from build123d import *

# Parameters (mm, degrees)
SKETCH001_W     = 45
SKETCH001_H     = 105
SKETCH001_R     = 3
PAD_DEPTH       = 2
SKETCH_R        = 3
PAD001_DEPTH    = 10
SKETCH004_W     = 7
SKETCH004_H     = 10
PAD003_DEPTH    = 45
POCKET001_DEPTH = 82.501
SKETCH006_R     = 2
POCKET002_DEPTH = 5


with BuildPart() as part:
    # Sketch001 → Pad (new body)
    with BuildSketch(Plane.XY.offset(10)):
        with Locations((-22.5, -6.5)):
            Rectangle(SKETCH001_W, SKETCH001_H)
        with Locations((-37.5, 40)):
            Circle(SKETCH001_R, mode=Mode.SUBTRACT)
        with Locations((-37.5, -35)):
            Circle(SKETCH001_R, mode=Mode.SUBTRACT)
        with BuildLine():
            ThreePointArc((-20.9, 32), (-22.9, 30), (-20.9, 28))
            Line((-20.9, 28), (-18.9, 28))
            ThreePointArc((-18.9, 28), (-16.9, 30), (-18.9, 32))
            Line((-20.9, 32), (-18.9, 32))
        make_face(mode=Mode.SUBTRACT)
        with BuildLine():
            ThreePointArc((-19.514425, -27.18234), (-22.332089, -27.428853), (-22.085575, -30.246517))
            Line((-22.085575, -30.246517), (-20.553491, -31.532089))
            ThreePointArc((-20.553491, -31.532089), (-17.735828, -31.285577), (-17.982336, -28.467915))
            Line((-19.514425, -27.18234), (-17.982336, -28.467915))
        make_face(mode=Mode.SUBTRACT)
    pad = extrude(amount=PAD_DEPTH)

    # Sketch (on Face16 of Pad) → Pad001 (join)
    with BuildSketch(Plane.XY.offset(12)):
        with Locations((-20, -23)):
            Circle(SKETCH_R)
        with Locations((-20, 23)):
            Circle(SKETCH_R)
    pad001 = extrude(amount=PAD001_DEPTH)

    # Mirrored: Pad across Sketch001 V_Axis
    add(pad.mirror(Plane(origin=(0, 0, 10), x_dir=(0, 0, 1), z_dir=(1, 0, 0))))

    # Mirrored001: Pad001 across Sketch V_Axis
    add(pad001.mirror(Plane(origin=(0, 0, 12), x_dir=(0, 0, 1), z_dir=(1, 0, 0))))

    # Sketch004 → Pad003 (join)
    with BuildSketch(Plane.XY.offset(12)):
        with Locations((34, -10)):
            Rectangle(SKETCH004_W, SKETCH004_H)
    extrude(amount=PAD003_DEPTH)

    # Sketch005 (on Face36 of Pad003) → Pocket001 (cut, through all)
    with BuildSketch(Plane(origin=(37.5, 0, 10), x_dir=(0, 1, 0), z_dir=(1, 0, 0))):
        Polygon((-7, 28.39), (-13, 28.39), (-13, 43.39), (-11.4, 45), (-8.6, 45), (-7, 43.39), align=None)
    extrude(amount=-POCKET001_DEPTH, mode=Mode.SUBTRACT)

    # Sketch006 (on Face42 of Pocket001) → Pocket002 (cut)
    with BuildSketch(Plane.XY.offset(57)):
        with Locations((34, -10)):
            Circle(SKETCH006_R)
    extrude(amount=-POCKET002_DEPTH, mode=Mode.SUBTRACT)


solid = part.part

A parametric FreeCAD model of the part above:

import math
import FreeCAD as App
import Part
import Sketcher
from FreeCAD import Vector
Q = App.Units.Quantity

doc = App.newDocument("Part")
body = doc.addObject("PartDesign::Body", "Body")

# Sketch on XY plane
sketch1 = body.newObject("Sketcher::SketchObject", "Sketch")
sketch1.AttachmentSupport = (doc.getObject("XY_Plane"), [""])
sketch1.MapMode = "FlatFace"
sketch1.AttachmentOffset = App.Placement(Vector(0, 0, 10), App.Rotation())
sketch1.addGeometry([
    Part.LineSegment(Vector(-45, 46, 0), Vector(-45, -59, 0)),  # 0
    Part.LineSegment(Vector(-45, -59, 0), Vector(0, -59, 0)),  # 1
    Part.LineSegment(Vector(0, -59, 0), Vector(0, 46, 0)),  # 2
    Part.LineSegment(Vector(0, 46, 0), Vector(-45, 46, 0)),  # 3
    Part.Circle(Vector(-37.5, -35, 0), Vector(0, 0, 1), 3),  # 4
    Part.ArcOfCircle(Part.Circle(Vector(-20.800001, -28.714428, 0), Vector(0, 0, 1), 2), math.radians(49.999978), math.radians(230.000018)),  # 5
    Part.LineSegment(Vector(-19.514425, -27.18234, 0), Vector(-17.982336, -28.467915, 0)),  # 6
    Part.ArcOfCircle(Part.Circle(Vector(-19.267916, -30, 0), Vector(0, 0, 1), 2), math.radians(-130.000006), math.radians(49.999836)),  # 7
    Part.LineSegment(Vector(-20.553491, -31.532089, 0), Vector(-22.085575, -30.246517, 0)),  # 8
    Part.Circle(Vector(-37.5, 40, 0), Vector(0, 0, 1), 3),  # 9
    Part.ArcOfCircle(Part.Circle(Vector(-20.9, 30, 0), Vector(0, 0, 1), 2), math.radians(90), math.radians(270)),  # 10
    Part.LineSegment(Vector(-20.9, 32, 0), Vector(-18.9, 32, 0)),  # 11
    Part.ArcOfCircle(Part.Circle(Vector(-18.9, 30, 0), Vector(0, 0, 1), 2), math.radians(-90), math.radians(90)),  # 12
    Part.LineSegment(Vector(-18.9, 28, 0), Vector(-20.9, 28, 0)),  # 13
], False)
sketch1.addConstraint([
    Sketcher.Constraint("Coincident", 0, 2, 1, 1),
    Sketcher.Constraint("Coincident", 1, 2, 2, 1),
    Sketcher.Constraint("Coincident", 2, 2, 3, 1),
    Sketcher.Constraint("Coincident", 3, 2, 0, 1),
    Sketcher.Constraint("Tangent", 5, 1, 6, 1),
    Sketcher.Constraint("Coincident", 6, 2, 7, 2),
    Sketcher.Constraint("Tangent", 7, 1, 8, 1),
    Sketcher.Constraint("Tangent", 8, 2, 5, 2),
    Sketcher.Constraint("Tangent", 10, 1, 11, 1),
    Sketcher.Constraint("Tangent", 11, 2, 12, 2),
    Sketcher.Constraint("Tangent", 12, 1, 13, 1),
    Sketcher.Constraint("Tangent", 13, 2, 10, 2),
    Sketcher.Constraint("Vertical", 0),
    Sketcher.Constraint("Horizontal", 1),
    Sketcher.Constraint("Vertical", 2),
    Sketcher.Constraint("Horizontal", 3),
    Sketcher.Constraint("Horizontal", 11),
    Sketcher.Constraint("Horizontal", 13),
    Sketcher.Constraint("Equal", 5, 7),
    Sketcher.Constraint("Equal", 4, 9),
    Sketcher.Constraint("Equal", 7, 10),
    Sketcher.Constraint("PointOnObject", 1, 2, -2),
    Sketcher.Constraint("Vertical", 4, 3, 9, 3),
    Sketcher.Constraint("Diameter", 4, Q("6 mm")),
    Sketcher.Constraint("Radius", 5, Q("2 mm")),
    Sketcher.Constraint("DistanceX", 1, 1, 1, 2, Q("45 mm")),
    Sketcher.Constraint("DistanceX", 11, 1, 11, 2, Q("2 mm")),
    Sketcher.Constraint("DistanceY", 0, 2, 0, 1, Q("105 mm")),
    Sketcher.Constraint("Angle", 6, Q("-39.999993 deg")),
    Sketcher.Constraint("Distance", 6, Q("2 mm")),
    Sketcher.Constraint("DistanceY", 4, 3, -1, 1, Q("35 mm")),
    Sketcher.Constraint("DistanceY", 7, 3, -1, 1, Q("30 mm")),
    Sketcher.Constraint("DistanceY", -1, 1, 9, 3, Q("40 mm")),
    Sketcher.Constraint("DistanceY", -1, 1, 10, 3, Q("30 mm")),
    Sketcher.Constraint("DistanceY", 0, 2, -1, 1, Q("59 mm")),
    Sketcher.Constraint("DistanceX", 4, 3, -1, 1, Q("37.5 mm")),
    Sketcher.Constraint("DistanceX", 5, 3, -1, 1, Q("20.800001 mm")),
    Sketcher.Constraint("DistanceX", 10, 3, -1, 1, Q("20.9 mm")),
    Sketcher.Constraint("DistanceY", 5, 3, -1, 1, Q("28.714428 mm")),
])
pad1 = body.newObject("PartDesign::Pad", "Pad")
pad1.Profile = sketch1
pad1.Length = 2

# Sketch on XY plane
sketch2 = body.newObject("Sketcher::SketchObject", "Sketch001")
sketch2.AttachmentSupport = (doc.getObject("XY_Plane"), [""])
sketch2.MapMode = "FlatFace"
sketch2.AttachmentOffset = App.Placement(Vector(0, 0, 12), App.Rotation())
sketch2.addGeometry([
    Part.Circle(Vector(-20, -23, 0), Vector(0, 0, 1), 3),
    Part.Circle(Vector(-20, 23, 0), Vector(0, 0, 1), 3),
], False)
sketch2.addConstraint([
    Sketcher.Constraint("Equal", 0, 1),
    Sketcher.Constraint("Symmetric", 0, 3, 1, 3, -1),
    Sketcher.Constraint("Diameter", 0, Q("6 mm")),
    Sketcher.Constraint("DistanceX", 0, 3, -1, 1, Q("20 mm")),
    Sketcher.Constraint("DistanceY", 0, 3, -1, 1, Q("23 mm")),
])
pad2 = body.newObject("PartDesign::Pad", "Pad001")
pad2.Profile = sketch2
pad2.Length = 10
doc.recompute()

mirrored = body.newObject("PartDesign::Mirrored", "Mirrored")
mirrored.Originals = [pad1]
mirrored.MirrorPlane = (doc.getObject("YZ_Plane"), [""])
body.Tip = mirrored
doc.recompute()

mirrored2 = body.newObject("PartDesign::Mirrored", "Mirrored001")
mirrored2.Originals = [pad2]
mirrored2.MirrorPlane = (doc.getObject("YZ_Plane"), [""])
body.Tip = mirrored2

# Sketch on XY plane
sketch3 = body.newObject("Sketcher::SketchObject", "Sketch002")
sketch3.AttachmentSupport = (doc.getObject("XY_Plane"), [""])
sketch3.MapMode = "FlatFace"
sketch3.AttachmentOffset = App.Placement(Vector(0, 0, 12), App.Rotation())
sketch3.addGeometry([
    Part.LineSegment(Vector(30.5, -5, 0), Vector(30.5, -15, 0)),
    Part.LineSegment(Vector(30.5, -15, 0), Vector(37.5, -15, 0)),
    Part.LineSegment(Vector(37.5, -15, 0), Vector(37.5, -5, 0)),
    Part.LineSegment(Vector(37.5, -5, 0), Vector(30.5, -5, 0)),
], False)
sketch3.addConstraint([
    Sketcher.Constraint("Coincident", 0, 2, 1, 1),
    Sketcher.Constraint("Coincident", 1, 2, 2, 1),
    Sketcher.Constraint("Coincident", 2, 2, 3, 1),
    Sketcher.Constraint("Coincident", 3, 2, 0, 1),
    Sketcher.Constraint("Vertical", 0),
    Sketcher.Constraint("Horizontal", 1),
    Sketcher.Constraint("Vertical", 2),
    Sketcher.Constraint("Horizontal", 3),
    Sketcher.Constraint("DistanceX", 1, 1, 1, 2, Q("7 mm")),
    Sketcher.Constraint("DistanceY", 0, 2, 0, 1, Q("10 mm")),
    Sketcher.Constraint("DistanceY", 0, 2, -1, 1, Q("15 mm")),
    Sketcher.Constraint("DistanceX", -1, 1, 0, 2, Q("30.5 mm")),
])
pad3 = body.newObject("PartDesign::Pad", "Pad002")
pad3.Profile = sketch3
pad3.Length = 45

# Sketch on YZ plane
sketch4 = body.newObject("Sketcher::SketchObject", "Sketch003")
sketch4.AttachmentSupport = (doc.getObject("YZ_Plane"), [""])
sketch4.MapMode = "FlatFace"
sketch4.AttachmentOffset = App.Placement(Vector(0, 0, 37.5), App.Rotation())
sketch4.addGeometry([
    Part.LineSegment(Vector(-13, 38.39, 0), Vector(-7, 38.39, 0)),  # 0
    Part.LineSegment(Vector(-7, 38.39, 0), Vector(-7, 53.39, 0)),  # 1
    Part.LineSegment(Vector(-7, 53.39, 0), Vector(-8.6, 55, 0)),  # 2
    Part.LineSegment(Vector(-8.6, 55, 0), Vector(-11.4, 55, 0)),  # 3
    Part.LineSegment(Vector(-11.4, 55, 0), Vector(-13, 53.39, 0)),  # 4
    Part.LineSegment(Vector(-13, 53.39, 0), Vector(-13, 38.39, 0)),  # 5
], False)
sketch4.addConstraint([
    Sketcher.Constraint("Coincident", 0, 2, 1, 1),
    Sketcher.Constraint("Coincident", 1, 2, 2, 1),
    Sketcher.Constraint("Coincident", 2, 2, 3, 1),
    Sketcher.Constraint("Coincident", 3, 2, 4, 1),
    Sketcher.Constraint("Coincident", 4, 2, 5, 1),
    Sketcher.Constraint("Coincident", 5, 2, 0, 1),
    Sketcher.Constraint("Horizontal", 0),
    Sketcher.Constraint("Vertical", 1),
    Sketcher.Constraint("Horizontal", 3),
    Sketcher.Constraint("Vertical", 5),
    Sketcher.Constraint("Horizontal", 1, 2, 4, 2),
    Sketcher.Constraint("Equal", 2, 4),
    Sketcher.Constraint("DistanceX", 0, 1, 0, 2, Q("6 mm")),
    Sketcher.Constraint("DistanceY", 1, 1, 1, 2, Q("15 mm")),
    Sketcher.Constraint("DistanceX", 3, 2, 3, 1, Q("2.8 mm")),
    Sketcher.Constraint("DistanceX", 0, 2, -1, 1, Q("7 mm")),
    Sketcher.Constraint("DistanceY", -1, 1, 2, 2, Q("55 mm")),
    Sketcher.Constraint("DistanceY", -1, 1, 0, 2, Q("38.39 mm")),
])
pocket1 = body.newObject("PartDesign::Pocket", "Pocket")
pocket1.Profile = sketch4
pocket1.Type = "ThroughAll"

# Sketch on XY plane
sketch5 = body.newObject("Sketcher::SketchObject", "Sketch004")
sketch5.AttachmentSupport = (doc.getObject("XY_Plane"), [""])
sketch5.MapMode = "FlatFace"
sketch5.AttachmentOffset = App.Placement(Vector(0, 0, 57), App.Rotation())
sketch5.addGeometry(Part.Circle(Vector(34, -10, 0), Vector(0, 0, 1), 2), False)
sketch5.addConstraint([
    Sketcher.Constraint("Diameter", 0, Q("4 mm")),
    Sketcher.Constraint("DistanceX", -1, 1, 0, 3, Q("34 mm")),
    Sketcher.Constraint("DistanceY", 0, 3, -1, 1, Q("10 mm")),
])
pocket2 = body.newObject("PartDesign::Pocket", "Pocket001")
pocket2.Profile = sketch5
pocket2.Length = 5

doc.recompute()
